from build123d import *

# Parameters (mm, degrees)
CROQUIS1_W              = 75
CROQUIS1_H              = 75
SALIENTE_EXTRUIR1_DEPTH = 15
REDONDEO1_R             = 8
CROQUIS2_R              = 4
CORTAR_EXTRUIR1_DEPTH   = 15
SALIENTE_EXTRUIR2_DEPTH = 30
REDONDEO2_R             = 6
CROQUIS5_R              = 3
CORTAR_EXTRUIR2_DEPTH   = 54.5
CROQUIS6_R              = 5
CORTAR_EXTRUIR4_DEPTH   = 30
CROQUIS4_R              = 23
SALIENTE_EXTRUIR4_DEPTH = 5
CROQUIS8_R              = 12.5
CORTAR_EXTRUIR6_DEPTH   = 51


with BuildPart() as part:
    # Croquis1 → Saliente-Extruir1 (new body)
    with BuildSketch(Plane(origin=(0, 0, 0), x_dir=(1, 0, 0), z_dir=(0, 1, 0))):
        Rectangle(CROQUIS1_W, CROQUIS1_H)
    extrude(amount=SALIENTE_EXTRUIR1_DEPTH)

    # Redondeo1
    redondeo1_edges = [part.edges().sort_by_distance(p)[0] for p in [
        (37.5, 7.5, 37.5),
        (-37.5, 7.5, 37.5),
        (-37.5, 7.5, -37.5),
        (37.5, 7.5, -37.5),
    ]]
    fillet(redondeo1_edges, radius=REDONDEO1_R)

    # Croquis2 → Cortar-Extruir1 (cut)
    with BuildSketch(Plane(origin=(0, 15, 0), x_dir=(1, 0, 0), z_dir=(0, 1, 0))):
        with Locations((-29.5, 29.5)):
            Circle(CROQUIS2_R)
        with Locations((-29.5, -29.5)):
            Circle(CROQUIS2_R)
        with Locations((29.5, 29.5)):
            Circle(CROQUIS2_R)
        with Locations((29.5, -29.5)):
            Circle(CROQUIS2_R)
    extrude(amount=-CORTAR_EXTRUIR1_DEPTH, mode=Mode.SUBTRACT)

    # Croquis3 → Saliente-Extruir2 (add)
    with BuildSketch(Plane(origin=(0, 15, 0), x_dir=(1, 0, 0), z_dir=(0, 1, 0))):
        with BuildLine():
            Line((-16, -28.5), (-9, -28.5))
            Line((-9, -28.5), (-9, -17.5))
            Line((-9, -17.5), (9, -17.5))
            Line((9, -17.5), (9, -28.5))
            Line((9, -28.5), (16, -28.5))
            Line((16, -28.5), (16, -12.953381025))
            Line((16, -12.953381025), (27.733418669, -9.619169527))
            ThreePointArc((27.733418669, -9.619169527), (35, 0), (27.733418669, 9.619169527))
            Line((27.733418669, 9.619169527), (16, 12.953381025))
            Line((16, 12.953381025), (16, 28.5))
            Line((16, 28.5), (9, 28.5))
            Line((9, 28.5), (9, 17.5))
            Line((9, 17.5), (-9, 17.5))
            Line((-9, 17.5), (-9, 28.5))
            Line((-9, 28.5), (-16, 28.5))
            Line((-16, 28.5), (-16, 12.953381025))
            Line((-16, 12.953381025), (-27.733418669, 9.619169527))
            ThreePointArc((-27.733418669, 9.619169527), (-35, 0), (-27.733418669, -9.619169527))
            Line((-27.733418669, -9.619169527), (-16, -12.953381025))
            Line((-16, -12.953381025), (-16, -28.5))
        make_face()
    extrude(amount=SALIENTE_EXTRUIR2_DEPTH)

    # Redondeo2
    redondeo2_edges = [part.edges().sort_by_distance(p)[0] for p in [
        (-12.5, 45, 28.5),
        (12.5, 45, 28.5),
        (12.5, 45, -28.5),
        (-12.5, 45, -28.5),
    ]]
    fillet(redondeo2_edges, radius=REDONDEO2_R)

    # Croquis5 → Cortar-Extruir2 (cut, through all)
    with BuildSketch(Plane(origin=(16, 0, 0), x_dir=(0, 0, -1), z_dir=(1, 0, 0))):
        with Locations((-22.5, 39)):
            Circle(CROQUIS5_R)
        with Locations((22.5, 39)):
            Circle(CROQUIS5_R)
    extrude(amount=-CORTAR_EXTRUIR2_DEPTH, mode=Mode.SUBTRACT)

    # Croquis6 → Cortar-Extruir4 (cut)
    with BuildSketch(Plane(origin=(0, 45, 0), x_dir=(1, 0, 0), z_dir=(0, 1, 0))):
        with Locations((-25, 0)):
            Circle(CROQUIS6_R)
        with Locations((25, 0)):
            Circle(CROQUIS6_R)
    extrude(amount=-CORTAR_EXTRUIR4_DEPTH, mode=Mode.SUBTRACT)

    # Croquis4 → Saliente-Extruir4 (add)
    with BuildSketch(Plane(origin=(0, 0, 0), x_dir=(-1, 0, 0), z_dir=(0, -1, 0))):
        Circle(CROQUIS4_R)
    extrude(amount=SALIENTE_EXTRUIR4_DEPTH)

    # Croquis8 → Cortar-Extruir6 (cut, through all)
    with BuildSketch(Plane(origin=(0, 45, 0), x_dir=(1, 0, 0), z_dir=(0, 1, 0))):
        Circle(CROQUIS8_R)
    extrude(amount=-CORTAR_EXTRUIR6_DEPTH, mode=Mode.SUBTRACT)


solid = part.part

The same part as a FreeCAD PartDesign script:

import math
import FreeCAD as App
import Part
import Sketcher
Q = App.Units.Quantity


def edges_at(feature, points):
    """Names of the edges that pass closest to the given points."""
    edges = feature.Shape.Edges
    near = lambda p: min(range(len(edges)), key=lambda i: edges[i].distToShape(Part.Vertex(*p))[0])
    return sorted({f"Edge{near(p) + 1}" for p in points})


def add_polygon(sketch, points):
    """Adds a closed chain of lines whose ends are joined by coincident constraints."""
    first, n = sketch.GeometryCount, len(points)
    for a, b in zip(points, points[1:] + points[:1]):
        sketch.addGeometry(Part.LineSegment(App.Vector(*a, 0), App.Vector(*b, 0)), False)
    for i in range(n):
        sketch.addConstraint(Sketcher.Constraint("Coincident", first + i, 2, first + (i + 1) % n, 1))

doc = App.newDocument("Part")
params = doc.addObject("Spreadsheet::Sheet", "Params")
for row, (alias, value) in enumerate([
    ("sketch1_width", "75 mm"),
    ("pad1_length", "15 mm"),
    ("fillet_radius", "8 mm"),
    ("sketch2_diameter", "8 mm"),
    ("pocket1_length", "15 mm"),
    ("sketch3_radius", "10 mm"),
    ("sketch3_width", "7 mm"),
    ("sketch3_width2", "18 mm"),
    ("sketch3_height", "11 mm"),
    ("pad2_length", "30 mm"),
    ("fillet2_radius", "6 mm"),
    ("sketch4_diameter", "6 mm"),
    ("sketch5_diameter", "10 mm"),
    ("pocket3_length", "30 mm"),
    ("sketch6_diameter", "46 mm"),
    ("pad3_length", "5 mm"),
    ("sketch7_diameter", "25 mm"),
], start=1):
    params.set(f"A{row}", alias)
    params.set(f"B{row}", "=" + value)
    params.setAlias(f"B{row}", alias)

body = doc.addObject("PartDesign::Body", "Body")

# Sketch on XZ plane
sketch1 = body.newObject("Sketcher::SketchObject", "Sketch")
sketch1.AttachmentSupport = (doc.getObject("XZ_Plane"), [""])
sketch1.MapMode = "FlatFace"
add_polygon(sketch1, [(-37.5, -37.5), (-37.5, 37.5), (37.5, 37.5), (37.5, -37.5)])  # lines 0-3
sketch1.addConstraint(Sketcher.Constraint("Vertical", 0))
sketch1.addConstraint(Sketcher.Constraint("Horizontal", 1))
sketch1.addConstraint(Sketcher.Constraint("Vertical", 2))
sketch1.addConstraint(Sketcher.Constraint("Horizontal", 3))
sketch1.addConstraint(Sketcher.Constraint("Symmetric", 0, 2, 2, 2, -1, 1))
sketch1.addConstraint(Sketcher.Constraint("Equal", 3, 0))
sketch1.addConstraint(Sketcher.Constraint("DistanceX", 1, 1, 1, 2, Q("75 mm")))
sketch1.setExpression("Constraints[10]", "Params.sketch1_width")
pad1 = body.newObject("PartDesign::Pad", "Pad")
pad1.Profile = sketch1
pad1.setExpression("Length", "Params.pad1_length")
pad1.Reversed = True
doc.recompute()

fillet = body.newObject("PartDesign::Fillet", "Fillet")
fillet.Base = (pad1, edges_at(pad1, [
    (37.5, 7.5, 37.5),
    (-37.5, 7.5, 37.5),
    (-37.5, 7.5, -37.5),
    (37.5, 7.5, -37.5),
]))
fillet.setExpression("Radius", "Params.fillet_radius")

# Sketch on XZ plane
sketch2 = body.newObject("Sketcher::SketchObject", "Sketch001")
sketch2.AttachmentSupport = (doc.getObject("XZ_Plane"), [""])
sketch2.MapMode = "FlatFace"
sketch2.AttachmentOffset = App.Placement(App.Vector(0, 0, -15), App.Rotation())
sketch2.addGeometry(Part.Circle(App.Vector(-29.5, -29.5, 0), App.Vector(0, 0, 1), 4), False)
sketch2.addGeometry(Part.Circle(App.Vector(-29.5, 29.5, 0), App.Vector(0, 0, 1), 4), False)
sketch2.addGeometry(Part.Circle(App.Vector(29.5, -29.5, 0), App.Vector(0, 0, 1), 4), False)
sketch2.addGeometry(Part.Circle(App.Vector(29.5, 29.5, 0), App.Vector(0, 0, 1), 4), False)
sketch2.addConstraint(Sketcher.Constraint("Equal", 0, 1))
sketch2.addConstraint(Sketcher.Constraint("Equal", 1, 2))
sketch2.addConstraint(Sketcher.Constraint("Equal", 2, 3))
sketch2.addConstraint(Sketcher.Constraint("Symmetric", 1, 3, 2, 3, -1, 1))
sketch2.addConstraint(Sketcher.Constraint("Symmetric", 0, 3, 3, 3, -1, 1))
sketch2.addConstraint(Sketcher.Constraint("Symmetric", 0, 3, 2, 3, -2))
sketch2.addConstraint(Sketcher.Constraint("Diameter", 0, Q("8 mm")))
sketch2.addConstraint(Sketcher.Constraint("DistanceY", 0, 3, 1, 3, Q("59 mm")))
sketch2.addConstraint(Sketcher.Constraint("DistanceX", 0, 3, 2, 3, Q("59 mm")))
sketch2.setExpression("Constraints[6]", "Params.sketch2_diameter")
pocket1 = body.newObject("PartDesign::Pocket", "Pocket")
pocket1.Profile = sketch2
pocket1.setExpression("Length", "Params.pocket1_length")
pocket1.Reversed = True

# Sketch on XZ plane
sketch3 = body.newObject("Sketcher::SketchObject", "Sketch002")
sketch3.AttachmentSupport = (doc.getObject("XZ_Plane"), [""])
sketch3.MapMode = "FlatFace"
sketch3.AttachmentOffset = App.Placement(App.Vector(0, 0, -15), App.Rotation())
sketch3.addGeometry(Part.LineSegment(App.Vector(-16, 28.5, 0), App.Vector(-9, 28.5, 0)), False)
sketch3.addGeometry(Part.LineSegment(App.Vector(-9, 28.5, 0), App.Vector(-9, 17.5, 0)), False)
sketch3.addGeometry(Part.LineSegment(App.Vector(-9, 17.5, 0), App.Vector(9, 17.5, 0)), False)
sketch3.addGeometry(Part.LineSegment(App.Vector(9, 17.5, 0), App.Vector(9, 28.5, 0)), False)
sketch3.addGeometry(Part.LineSegment(App.Vector(9, 28.5, 0), App.Vector(16, 28.5, 0)), False)
sketch3.addGeometry(Part.LineSegment(App.Vector(16, 28.5, 0), App.Vector(16, 12.953381, 0)), False)
sketch3.addGeometry(Part.LineSegment(App.Vector(16, 12.953381, 0), App.Vector(27.733419, 9.61917, 0)), False)
sketch3.addGeometry(Part.ArcOfCircle(Part.Circle(App.Vector(25, 0, 0), App.Vector(0, 0, 1), 10), math.radians(-74.136775), math.radians(74.136775)), False)
sketch3.addGeometry(Part.LineSegment(App.Vector(27.733419, -9.61917, 0), App.Vector(16, -12.953381, 0)), False)
sketch3.addGeometry(Part.LineSegment(App.Vector(16, -12.953381, 0), App.Vector(16, -28.5, 0)), False)
sketch3.addGeometry(Part.LineSegment(App.Vector(16, -28.5, 0), App.Vector(9, -28.5, 0)), False)
sketch3.addGeometry(Part.LineSegment(App.Vector(9, -28.5, 0), App.Vector(9, -17.5, 0)), False)
sketch3.addGeometry(Part.LineSegment(App.Vector(9, -17.5, 0), App.Vector(-9, -17.5, 0)), False)
sketch3.addGeometry(Part.LineSegment(App.Vector(-9, -17.5, 0), App.Vector(-9, -28.5, 0)), False)
sketch3.addGeometry(Part.LineSegment(App.Vector(-9, -28.5, 0), App.Vector(-16, -28.5, 0)), False)
sketch3.addGeometry(Part.LineSegment(App.Vector(-16, -28.5, 0), App.Vector(-16, -12.953381, 0)), False)
sketch3.addGeometry(Part.LineSegment(App.Vector(-16, -12.953381, 0), App.Vector(-27.733419, -9.61917, 0)), False)
sketch3.addGeometry(Part.ArcOfCircle(Part.Circle(App.Vector(-25, 0, 0), App.Vector(0, 0, 1), 10), math.radians(105.863225), math.radians(254.136775)), False)
sketch3.addGeometry(Part.LineSegment(App.Vector(-27.733419, 9.61917, 0), App.Vector(-16, 12.953381, 0)), False)
sketch3.addGeometry(Part.LineSegment(App.Vector(-16, 12.953381, 0), App.Vector(-16, 28.5, 0)), False)
sketch3.addConstraint(Sketcher.Constraint("Coincident", 0, 2, 1, 1))
sketch3.addConstraint(Sketcher.Constraint("Coincident", 1, 2, 2, 1))
sketch3.addConstraint(Sketcher.Constraint("Coincident", 2, 2, 3, 1))
sketch3.addConstraint(Sketcher.Constraint("Coincident", 3, 2, 4, 1))
sketch3.addConstraint(Sketcher.Constraint("Coincident", 4, 2, 5, 1))
sketch3.addConstraint(Sketcher.Constraint("Coincident", 5, 2, 6, 1))
sketch3.addConstraint(Sketcher.Constraint("Tangent", 6, 2, 7, 2))
sketch3.addConstraint(Sketcher.Constraint("Tangent", 7, 1, 8, 1))
sketch3.addConstraint(Sketcher.Constraint("Coincident", 8, 2, 9, 1))
sketch3.addConstraint(Sketcher.Constraint("Coincident", 9, 2, 10, 1))
sketch3.addConstraint(Sketcher.Constraint("Coincident", 10, 2, 11, 1))
sketch3.addConstraint(Sketcher.Constraint("Coincident", 11, 2, 12, 1))
sketch3.addConstraint(Sketcher.Constraint("Coincident", 12, 2, 13, 1))
sketch3.addConstraint(Sketcher.Constraint("Coincident", 13, 2, 14, 1))
sketch3.addConstraint(Sketcher.Constraint("Coincident", 14, 2, 15, 1))
sketch3.addConstraint(Sketcher.Constraint("Coincident", 15, 2, 16, 1))
sketch3.addConstraint(Sketcher.Constraint("Tangent", 16, 2, 17, 2))
sketch3.addConstraint(Sketcher.Constraint("Tangent", 17, 1, 18, 1))
sketch3.addConstraint(Sketcher.Constraint("Coincident", 18, 2, 19, 1))
sketch3.addConstraint(Sketcher.Constraint("Coincident", 19, 2, 0, 1))
sketch3.addConstraint(Sketcher.Constraint("Horizontal", 0))
sketch3.addConstraint(Sketcher.Constraint("Vertical", 1))
sketch3.addConstraint(Sketcher.Constraint("Horizontal", 2))
sketch3.addConstraint(Sketcher.Constraint("Vertical", 3))
sketch3.addConstraint(Sketcher.Constraint("Horizontal", 4))
sketch3.addConstraint(Sketcher.Constraint("Vertical", 5))
sketch3.addConstraint(Sketcher.Constraint("Vertical", 9))
sketch3.addConstraint(Sketcher.Constraint("Horizontal", 10))
sketch3.addConstraint(Sketcher.Constraint("Vertical", 11))
sketch3.addConstraint(Sketcher.Constraint("Horizontal", 12))
sketch3.addConstraint(Sketcher.Constraint("Vertical", 13))
sketch3.addConstraint(Sketcher.Constraint("Horizontal", 14))
sketch3.addConstraint(Sketcher.Constraint("Vertical", 15))
sketch3.addConstraint(Sketcher.Constraint("Vertical", 19))
sketch3.addConstraint(Sketcher.Constraint("Equal", 7, 17))
sketch3.addConstraint(Sketcher.Constraint("Symmetric", 7, 3, 17, 3, -1, 1))
sketch3.addConstraint(Sketcher.Constraint("Symmetric", 0, 2, 10, 2, -1, 1))
sketch3.addConstraint(Sketcher.Constraint("Symmetric", 2, 2, 12, 2, -1, 1))
sketch3.addConstraint(Sketcher.Constraint("Symmetric", 4, 2, 14, 2, -1, 1))
sketch3.addConstraint(Sketcher.Constraint("Symmetric", 8, 2, 18, 2, -1, 1))
sketch3.addConstraint(Sketcher.Constraint("Symmetric", 0, 2, 3, 2, -2))
sketch3.addConstraint(Sketcher.Constraint("Symmetric", 8, 2, 15, 2, -2))
sketch3.addConstraint(Sketcher.Constraint("Symmetric", 6, 2, 17, 1, -2))
sketch3.addConstraint(Sketcher.Constraint("Radius", 7, Q("10 mm")))
sketch3.addConstraint(Sketcher.Constraint("DistanceX", 0, 1, 0, 2, Q("7 mm")))
sketch3.addConstraint(Sketcher.Constraint("DistanceX", 2, 1, 2, 2, Q("18 mm")))
sketch3.addConstraint(Sketcher.Constraint("DistanceY", 1, 2, 1, 1, Q("11 mm")))
sketch3.addConstraint(Sketcher.Constraint("DistanceX", -1, 1, 7, 3, Q("25 mm")))
sketch3.addConstraint(Sketcher.Constraint("DistanceY", -1, 1, 0, 2, Q("28.5 mm")))
sketch3.addConstraint(Sketcher.Constraint("DistanceY", 5, 2, 5, 1, Q("15.546619 mm")))
sketch3.setExpression("Constraints[43]", "Params.sketch3_radius")
sketch3.setExpression("Constraints[44]", "Params.sketch3_width")
sketch3.setExpression("Constraints[45]", "Params.sketch3_width2")
sketch3.setExpression("Constraints[46]", "Params.sketch3_height")
pad2 = body.newObject("PartDesign::Pad", "Pad001")
pad2.Profile = sketch3
pad2.setExpression("Length", "Params.pad2_length")
pad2.Reversed = True
doc.recompute()

fillet2 = body.newObject("PartDesign::Fillet", "Fillet001")
fillet2.Base = (pad2, edges_at(pad2, [
    (-12.5, 45, 28.5),
    (12.5, 45, 28.5),
    (12.5, 45, -28.5),
    (-12.5, 45, -28.5),
]))
fillet2.setExpression("Radius", "Params.fillet2_radius")

# Sketch on YZ plane
sketch4 = body.newObject("Sketcher::SketchObject", "Sketch003")
sketch4.AttachmentSupport = (doc.getObject("YZ_Plane"), [""])
sketch4.MapMode = "FlatFace"
sketch4.AttachmentOffset = App.Placement(App.Vector(0, 0, 16), App.Rotation())
sketch4.addGeometry(Part.Circle(App.Vector(39, 22.5, 0), App.Vector(0, 0, 1), 3), False)
sketch4.addGeometry(Part.Circle(App.Vector(39, -22.5, 0), App.Vector(0, 0, 1), 3), False)
sketch4.addConstraint(Sketcher.Constraint("Equal", 0, 1))
sketch4.addConstraint(Sketcher.Constraint("Symmetric", 0, 3, 1, 3, -1))
sketch4.addConstraint(Sketcher.Constraint("Diameter", 0, Q("6 mm")))
sketch4.addConstraint(Sketcher.Constraint("DistanceX", -1, 1, 0, 3, Q("39 mm")))
sketch4.addConstraint(Sketcher.Constraint("DistanceY", 1, 3, 0, 3, Q("45 mm")))
sketch4.setExpression("Constraints[2]", "Params.sketch4_diameter")
pocket2 = body.newObject("PartDesign::Pocket", "Pocket001")
pocket2.Profile = sketch4
pocket2.Type = "ThroughAll"

# Sketch on XZ plane
sketch5 = body.newObject("Sketcher::SketchObject", "Sketch004")
sketch5.AttachmentSupport = (doc.getObject("XZ_Plane"), [""])
sketch5.MapMode = "FlatFace"
sketch5.AttachmentOffset = App.Placement(App.Vector(0, 0, -45), App.Rotation())
sketch5.addGeometry(Part.Circle(App.Vector(-25, 0, 0), App.Vector(0, 0, 1), 5), False)
sketch5.addGeometry(Part.Circle(App.Vector(25, 0, 0), App.Vector(0, 0, 1), 5), False)
sketch5.addConstraint(Sketcher.Constraint("Equal", 0, 1))
sketch5.addConstraint(Sketcher.Constraint("Symmetric", 0, 3, 1, 3, -1, 1))
sketch5.addConstraint(Sketcher.Constraint("PointOnObject", 0, 3, -1))
sketch5.addConstraint(Sketcher.Constraint("Diameter", 0, Q("10 mm")))
sketch5.addConstraint(Sketcher.Constraint("DistanceX", 0, 3, -1, 1, Q("25 mm")))
sketch5.setExpression("Constraints[3]", "Params.sketch5_diameter")
pocket3 = body.newObject("PartDesign::Pocket", "Pocket002")
pocket3.Profile = sketch5
pocket3.setExpression("Length", "Params.pocket3_length")
pocket3.Reversed = True

# Sketch on XZ plane
sketch6 = body.newObject("Sketcher::SketchObject", "Sketch005")
sketch6.AttachmentSupport = (doc.getObject("XZ_Plane"), [""])
sketch6.MapMode = "FlatFace"
sketch6.addGeometry(Part.Circle(App.Vector(0, 0, 0), App.Vector(0, 0, 1), 23), False)
sketch6.addConstraint(Sketcher.Constraint("Coincident", 0, 3, -1, 1))
sketch6.addConstraint(Sketcher.Constraint("Diameter", 0, Q("46 mm")))
sketch6.setExpression("Constraints[1]", "Params.sketch6_diameter")
pad3 = body.newObject("PartDesign::Pad", "Pad002")
pad3.Profile = sketch6
pad3.setExpression("Length", "Params.pad3_length")

# Sketch on XZ plane
sketch7 = body.newObject("Sketcher::SketchObject", "Sketch006")
sketch7.AttachmentSupport = (doc.getObject("XZ_Plane"), [""])
sketch7.MapMode = "FlatFace"
sketch7.AttachmentOffset = App.Placement(App.Vector(0, 0, -45), App.Rotation())
sketch7.addGeometry(Part.Circle(App.Vector(0, 0, 0), App.Vector(0, 0, 1), 12.5), False)
sketch7.addConstraint(Sketcher.Constraint("Coincident", 0, 3, -1, 1))
sketch7.addConstraint(Sketcher.Constraint("Diameter", 0, Q("25 mm")))
sketch7.setExpression("Constraints[1]", "Params.sketch7_diameter")
pocket4 = body.newObject("PartDesign::Pocket", "Pocket003")
pocket4.Profile = sketch7
pocket4.Type = "ThroughAll"
pocket4.Reversed = True

doc.recompute()
